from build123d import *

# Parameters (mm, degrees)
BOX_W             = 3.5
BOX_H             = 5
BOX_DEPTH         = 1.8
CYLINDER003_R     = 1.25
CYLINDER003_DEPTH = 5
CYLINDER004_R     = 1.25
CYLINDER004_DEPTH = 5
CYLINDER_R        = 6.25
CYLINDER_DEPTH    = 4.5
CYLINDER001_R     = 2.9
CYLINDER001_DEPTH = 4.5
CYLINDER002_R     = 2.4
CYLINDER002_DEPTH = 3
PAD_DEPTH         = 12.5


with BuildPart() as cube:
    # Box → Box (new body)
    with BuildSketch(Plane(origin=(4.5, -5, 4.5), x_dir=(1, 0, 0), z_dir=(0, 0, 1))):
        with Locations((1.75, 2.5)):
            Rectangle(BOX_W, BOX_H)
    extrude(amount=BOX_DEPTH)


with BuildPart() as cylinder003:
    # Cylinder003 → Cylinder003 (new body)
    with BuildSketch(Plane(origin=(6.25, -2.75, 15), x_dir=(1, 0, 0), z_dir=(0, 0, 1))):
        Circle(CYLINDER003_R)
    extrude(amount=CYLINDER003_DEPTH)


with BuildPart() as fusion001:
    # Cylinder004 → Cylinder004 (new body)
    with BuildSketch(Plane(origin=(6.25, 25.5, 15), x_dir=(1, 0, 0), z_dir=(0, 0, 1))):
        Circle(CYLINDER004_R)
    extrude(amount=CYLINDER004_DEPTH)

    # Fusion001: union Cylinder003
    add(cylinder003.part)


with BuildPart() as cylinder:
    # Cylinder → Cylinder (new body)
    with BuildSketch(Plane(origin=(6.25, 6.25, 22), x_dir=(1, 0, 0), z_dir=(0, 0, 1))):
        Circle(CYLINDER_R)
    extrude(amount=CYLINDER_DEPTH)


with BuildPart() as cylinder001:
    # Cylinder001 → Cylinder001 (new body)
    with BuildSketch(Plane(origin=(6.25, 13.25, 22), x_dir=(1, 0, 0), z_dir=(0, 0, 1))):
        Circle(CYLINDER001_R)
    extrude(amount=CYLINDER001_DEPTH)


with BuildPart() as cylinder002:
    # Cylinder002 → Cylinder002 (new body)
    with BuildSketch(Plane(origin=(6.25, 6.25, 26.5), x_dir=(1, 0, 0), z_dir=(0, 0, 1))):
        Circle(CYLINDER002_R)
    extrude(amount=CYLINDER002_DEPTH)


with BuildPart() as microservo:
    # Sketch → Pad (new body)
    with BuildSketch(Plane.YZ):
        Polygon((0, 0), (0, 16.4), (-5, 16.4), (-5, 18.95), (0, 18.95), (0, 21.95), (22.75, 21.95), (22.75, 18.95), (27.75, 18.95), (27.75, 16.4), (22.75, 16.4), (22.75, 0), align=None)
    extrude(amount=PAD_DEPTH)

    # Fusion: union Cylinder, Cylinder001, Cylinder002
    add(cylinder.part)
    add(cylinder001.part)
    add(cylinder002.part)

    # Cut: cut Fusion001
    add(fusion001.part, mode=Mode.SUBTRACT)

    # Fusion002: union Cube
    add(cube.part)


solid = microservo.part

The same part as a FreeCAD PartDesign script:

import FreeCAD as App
import Part
import Sketcher

doc = App.newDocument("Part")
params = doc.addObject("Spreadsheet::Sheet", "Params")
for row, (alias, value) in enumerate([
    ("sketch1_height", "5 mm"),
    ("sketch1_width", "3.5 mm"),
    ("pad1_length", "1.8 mm"),
    ("sketch2_diameter", "2.5 mm"),
    ("pad2_length", "5 mm"),
    ("sketch3_diameter", "2.5 mm"),
    ("pad3_length", "5 mm"),
    ("sketch4_diameter", "12.5 mm"),
    ("pad4_length", "4.5 mm"),
    ("sketch5_diameter", "5.8 mm"),
    ("pad5_length", "4.5 mm"),
    ("sketch6_diameter", "4.8 mm"),
    ("pad6_length", "3 mm"),
    ("sketch7_width", "5 mm"),
    ("sketch7_height", "3 mm"),
    ("sketch7_height2", "16.4 mm"),
    ("sketch7_width2", "22.75 mm"),
    ("sketch7_height3", "2.55 mm"),
    ("pad7_length", "12.5 mm"),
], start=1):
    params.set(f"A{row}", alias)
    params.set(f"B{row}", "=" + value)
    params.setAlias(f"B{row}", alias)

body = doc.addObject("PartDesign::Body", "Body")

# Sketch on XY plane
sketch1 = doc.addObject("Sketcher::SketchObject", "Sketch")
body.addObject(sketch1)
sketch1.AttachmentSupport = (doc.XY_Plane, [""])
sketch1.MapMode = "FlatFace"
sketch1.AttachmentOffset = App.Placement(App.Vector(0, 0, 4.5), App.Rotation())
sketch1.addGeometry([
    Part.LineSegment(App.Vector(4.5, 0, 0), App.Vector(4.5, -5, 0)),
    Part.LineSegment(App.Vector(4.5, -5, 0), App.Vector(8, -5, 0)),
    Part.LineSegment(App.Vector(8, -5, 0), App.Vector(8, 0, 0)),
    Part.LineSegment(App.Vector(8, 0, 0), App.Vector(4.5, 0, 0)),
], False)
sketch1.addConstraint([
    Sketcher.Constraint("Coincident", 0, 2, 1, 1),
    Sketcher.Constraint("Coincident", 1, 2, 2, 1),
    Sketcher.Constraint("Coincident", 2, 2, 3, 1),
    Sketcher.Constraint("Coincident", 3, 2, 0, 1),
    Sketcher.Constraint("Vertical", 0),
    Sketcher.Constraint("Horizontal", 1),
    Sketcher.Constraint("Vertical", 2),
    Sketcher.Constraint("Horizontal", 3),
    Sketcher.Constraint("PointOnObject", 2, 2, -1),
    Sketcher.Constraint("DistanceY", 0, 2, 0, 1, 5.0),
    Sketcher.Constraint("DistanceX", 1, 1, 1, 2, 3.5),
    Sketcher.Constraint("DistanceX", -1, 1, 1, 2, 8.0),
])
sketch1.setExpression("Constraints[9]", "Params.sketch1_height")
sketch1.setExpression("Constraints[10]", "Params.sketch1_width")
pad1 = doc.addObject("PartDesign::Pad", "Pad")
body.addObject(pad1)
pad1.Profile = sketch1
pad1.setExpression("Length", "Params.pad1_length")
body2 = doc.addObject("PartDesign::Body", "Body001")

# Sketch on XY plane
sketch2 = doc.addObject("Sketcher::SketchObject", "Sketch001")
body2.addObject(sketch2)
sketch2.AttachmentSupport = (doc.getObject("XY_Plane001"), [""])
sketch2.MapMode = "FlatFace"
sketch2.AttachmentOffset = App.Placement(App.Vector(0, 0, 15), App.Rotation())
sketch2.addGeometry(Part.Circle(App.Vector(6.2, -2.8, 0), App.Vector(0, 0, 1), 1.2), False)
sketch2.addConstraint([
    Sketcher.Constraint("Diameter", 0, 2.5),
    Sketcher.Constraint("DistanceX", -1, 1, 0, 3, 6.25),
    Sketcher.Constraint("DistanceY", 0, 3, -1, 1, 2.75),
])
sketch2.setExpression("Constraints[0]", "Params.sketch2_diameter")
pad2 = doc.addObject("PartDesign::Pad", "Pad001")
body2.addObject(pad2)
pad2.Profile = sketch2
pad2.setExpression("Length", "Params.pad2_length")
body3 = doc.addObject("PartDesign::Body", "Body002")
body3.AllowCompound = True

# Sketch on XY plane
sketch3 = doc.addObject("Sketcher::SketchObject", "Sketch002")
body3.addObject(sketch3)
sketch3.AttachmentSupport = (doc.getObject("XY_Plane002"), [""])
sketch3.MapMode = "FlatFace"
sketch3.AttachmentOffset = App.Placement(App.Vector(0, 0, 15), App.Rotation())
sketch3.addGeometry(Part.Circle(App.Vector(6.2, 25.5, 0), App.Vector(0, 0, 1), 1.2), False)
sketch3.addConstraint([
    Sketcher.Constraint("Diameter", 0, 2.5),
    Sketcher.Constraint("DistanceY", -1, 1, 0, 3, 25.5),
    Sketcher.Constraint("DistanceX", -1, 1, 0, 3, 6.25),
])
sketch3.setExpression("Constraints[0]", "Params.sketch3_diameter")
pad3 = doc.addObject("PartDesign::Pad", "Pad002")
body3.addObject(pad3)
pad3.Profile = sketch3
pad3.setExpression("Length", "Params.pad3_length")
doc.recompute()

boolean = doc.addObject("PartDesign::Boolean", "Boolean")
body3.addObject(boolean)
boolean.Type = "Fuse"
boolean.addObjects([body2])
body4 = doc.addObject("PartDesign::Body", "Body003")

# Sketch on XY plane
sketch4 = doc.addObject("Sketcher::SketchObject", "Sketch003")
body4.addObject(sketch4)
sketch4.AttachmentSupport = (doc.getObject("XY_Plane003"), [""])
sketch4.MapMode = "FlatFace"
sketch4.AttachmentOffset = App.Placement(App.Vector(0, 0, 22), App.Rotation())
sketch4.addGeometry(Part.Circle(App.Vector(6, 6, 0), App.Vector(0, 0, 1), 6), False)
sketch4.addConstraint([
    Sketcher.Constraint("Diameter", 0, 12.5),
    Sketcher.Constraint("DistanceX", -1, 1, 0, 3, 6.25),
    Sketcher.Constraint("DistanceY", -1, 1, 0, 3, 6.25),
])
sketch4.setExpression("Constraints[0]", "Params.sketch4_diameter")
pad4 = doc.addObject("PartDesign::Pad", "Pad003")
body4.addObject(pad4)
pad4.Profile = sketch4
pad4.setExpression("Length", "Params.pad4_length")
body5 = doc.addObject("PartDesign::Body", "Body004")

# Sketch on XY plane
sketch5 = doc.addObject("Sketcher::SketchObject", "Sketch004")
body5.addObject(sketch5)
sketch5.AttachmentSupport = (doc.getObject("XY_Plane004"), [""])
sketch5.MapMode = "FlatFace"
sketch5.AttachmentOffset = App.Placement(App.Vector(0, 0, 22), App.Rotation())
sketch5.addGeometry(Part.Circle(App.Vector(6.2, 13.2, 0), App.Vector(0, 0, 1), 2.9), False)
sketch5.addConstraint([
    Sketcher.Constraint("Diameter", 0, 5.8),
    Sketcher.Constraint("DistanceX", -1, 1, 0, 3, 6.25),
    Sketcher.Constraint("DistanceY", -1, 1, 0, 3, 13.25),
])
sketch5.setExpression("Constraints[0]", "Params.sketch5_diameter")
pad5 = doc.addObject("PartDesign::Pad", "Pad004")
body5.addObject(pad5)
pad5.Profile = sketch5
pad5.setExpression("Length", "Params.pad5_length")
body6 = doc.addObject("PartDesign::Body", "Body005")

# Sketch on XY plane
sketch6 = doc.addObject("Sketcher::SketchObject", "Sketch005")
body6.addObject(sketch6)
sketch6.AttachmentSupport = (doc.getObject("XY_Plane005"), [""])
sketch6.MapMode = "FlatFace"
sketch6.AttachmentOffset = App.Placement(App.Vector(0, 0, 26.5), App.Rotation())
sketch6.addGeometry(Part.Circle(App.Vector(6.2, 6.2, 0), App.Vector(0, 0, 1), 2.4), False)
sketch6.addConstraint([
    Sketcher.Constraint("Diameter", 0, 4.8),
    Sketcher.Constraint("DistanceX", -1, 1, 0, 3, 6.25),
    Sketcher.Constraint("DistanceY", -1, 1, 0, 3, 6.25),
])
sketch6.setExpression("Constraints[0]", "Params.sketch6_diameter")
pad6 = doc.addObject("PartDesign::Pad", "Pad005")
body6.addObject(pad6)
pad6.Profile = sketch6
pad6.setExpression("Length", "Params.pad6_length")
body7 = doc.addObject("PartDesign::Body", "Body006")
body7.AllowCompound = True

# Sketch on YZ plane
sketch7 = doc.addObject("Sketcher::SketchObject", "Sketch006")
body7.addObject(sketch7)
sketch7.AttachmentSupport = (doc.getObject("YZ_Plane006"), [""])
sketch7.MapMode = "FlatFace"
sketch7.addGeometry([
    Part.LineSegment(App.Vector(0, 16.4, 0), App.Vector(0, 0, 0)),  # 0
    Part.LineSegment(App.Vector(0, 0, 0), App.Vector(22.8, 0, 0)),  # 1
    Part.LineSegment(App.Vector(22.8, 0, 0), App.Vector(22.8, 16.4, 0)),  # 2
    Part.LineSegment(App.Vector(22.8, 16.4, 0), App.Vector(27.8, 16.4, 0)),  # 3
    Part.LineSegment(App.Vector(27.8, 16.4, 0), App.Vector(27.8, 18.9, 0)),  # 4
    Part.LineSegment(App.Vector(27.8, 18.9, 0), App.Vector(22.8, 18.9, 0)),  # 5
    Part.LineSegment(App.Vector(22.8, 18.9, 0), App.Vector(22.8, 21.9, 0)),  # 6
    Part.LineSegment(App.Vector(22.8, 21.9, 0), App.Vector(0, 21.9, 0)),  # 7
    Part.LineSegment(App.Vector(0, 21.9, 0), App.Vector(0, 18.9, 0)),  # 8
    Part.LineSegment(App.Vector(0, 18.9, 0), App.Vector(-5, 18.9, 0)),  # 9
    Part.LineSegment(App.Vector(-5, 18.9, 0), App.Vector(-5, 16.4, 0)),  # 10
    Part.LineSegment(App.Vector(-5, 16.4, 0), App.Vector(0, 16.4, 0)),  # 11
], False)
sketch7.addConstraint([
    Sketcher.Constraint("Coincident", 0, 2, 1, 1),
    Sketcher.Constraint("Coincident", 1, 2, 2, 1),
    Sketcher.Constraint("Coincident", 2, 2, 3, 1),
    Sketcher.Constraint("Coincident", 3, 2, 4, 1),
    Sketcher.Constraint("Coincident", 4, 2, 5, 1),
    Sketcher.Constraint("Coincident", 5, 2, 6, 1),
    Sketcher.Constraint("Coincident", 6, 2, 7, 1),
    Sketcher.Constraint("Coincident", 7, 2, 8, 1),
    Sketcher.Constraint("Coincident", 8, 2, 9, 1),
    Sketcher.Constraint("Coincident", 9, 2, 10, 1),
    Sketcher.Constraint("Coincident", 10, 2, 11, 1),
    Sketcher.Constraint("Coincident", 11, 2, 0, 1),
    Sketcher.Constraint("Vertical", 0),
    Sketcher.Constraint("Horizontal", 1),
    Sketcher.Constraint("Vertical", 2),
    Sketcher.Constraint("Horizontal", 3),
    Sketcher.Constraint("Vertical", 4),
    Sketcher.Constraint("Horizontal", 5),
    Sketcher.Constraint("Vertical", 6),
    Sketcher.Constraint("Horizontal", 7),
    Sketcher.Constraint("Vertical", 8),
    Sketcher.Constraint("Horizontal", 9),
    Sketcher.Constraint("Vertical", 10),
    Sketcher.Constraint("Horizontal", 11),
    Sketcher.Constraint("Coincident", 0, 2, -1, 1),
    Sketcher.Constraint("PointOnObject", 7, 2, -2),
    Sketcher.Constraint("Horizontal", 5, 2, 8, 2),
    Sketcher.Constraint("Horizontal", 3, 2, 10, 2),
    Sketcher.Constraint("Vertical", 2, 2, 5, 2),
    Sketcher.Constraint("Equal", 5, 9),
    Sketcher.Constraint("DistanceX", 3, 1, 3, 2, 5.0),
    Sketcher.Constraint("DistanceY", 6, 1, 6, 2, 3.0),
    Sketcher.Constraint("DistanceY", 0, 2, 0, 1, 16.4),
    Sketcher.Constraint("DistanceX", 1, 1, 1, 2, 22.75),
    Sketcher.Constraint("DistanceY", 4, 1, 4, 2, 2.55),
])
sketch7.setExpression("Constraints[30]", "Params.sketch7_width")
sketch7.setExpression("Constraints[31]", "Params.sketch7_height")
sketch7.setExpression("Constraints[32]", "Params.sketch7_height2")
sketch7.setExpression("Constraints[33]", "Params.sketch7_width2")
sketch7.setExpression("Constraints[34]", "Params.sketch7_height3")
pad7 = doc.addObject("PartDesign::Pad", "Pad006")
body7.addObject(pad7)
pad7.Profile = sketch7
pad7.setExpression("Length", "Params.pad7_length")
doc.recompute()

boolean2 = doc.addObject("PartDesign::Boolean", "Boolean001")
body7.addObject(boolean2)
boolean2.Type = "Fuse"
boolean2.addObjects([body4])
doc.recompute()

boolean3 = doc.addObject("PartDesign::Boolean", "Boolean002")
body7.addObject(boolean3)
boolean3.Type = "Fuse"
boolean3.addObjects([body5])
doc.recompute()

boolean4 = doc.addObject("PartDesign::Boolean", "Boolean003")
body7.addObject(boolean4)
boolean4.Type = "Fuse"
boolean4.addObjects([body6])
doc.recompute()

boolean5 = doc.addObject("PartDesign::Boolean", "Boolean004")
body7.addObject(boolean5)
boolean5.Type = "Cut"
boolean5.addObjects([body3])
doc.recompute()

boolean6 = doc.addObject("PartDesign::Boolean", "Boolean005")
body7.addObject(boolean6)
boolean6.Type = "Fuse"
boolean6.addObjects([body])

doc.recompute()
